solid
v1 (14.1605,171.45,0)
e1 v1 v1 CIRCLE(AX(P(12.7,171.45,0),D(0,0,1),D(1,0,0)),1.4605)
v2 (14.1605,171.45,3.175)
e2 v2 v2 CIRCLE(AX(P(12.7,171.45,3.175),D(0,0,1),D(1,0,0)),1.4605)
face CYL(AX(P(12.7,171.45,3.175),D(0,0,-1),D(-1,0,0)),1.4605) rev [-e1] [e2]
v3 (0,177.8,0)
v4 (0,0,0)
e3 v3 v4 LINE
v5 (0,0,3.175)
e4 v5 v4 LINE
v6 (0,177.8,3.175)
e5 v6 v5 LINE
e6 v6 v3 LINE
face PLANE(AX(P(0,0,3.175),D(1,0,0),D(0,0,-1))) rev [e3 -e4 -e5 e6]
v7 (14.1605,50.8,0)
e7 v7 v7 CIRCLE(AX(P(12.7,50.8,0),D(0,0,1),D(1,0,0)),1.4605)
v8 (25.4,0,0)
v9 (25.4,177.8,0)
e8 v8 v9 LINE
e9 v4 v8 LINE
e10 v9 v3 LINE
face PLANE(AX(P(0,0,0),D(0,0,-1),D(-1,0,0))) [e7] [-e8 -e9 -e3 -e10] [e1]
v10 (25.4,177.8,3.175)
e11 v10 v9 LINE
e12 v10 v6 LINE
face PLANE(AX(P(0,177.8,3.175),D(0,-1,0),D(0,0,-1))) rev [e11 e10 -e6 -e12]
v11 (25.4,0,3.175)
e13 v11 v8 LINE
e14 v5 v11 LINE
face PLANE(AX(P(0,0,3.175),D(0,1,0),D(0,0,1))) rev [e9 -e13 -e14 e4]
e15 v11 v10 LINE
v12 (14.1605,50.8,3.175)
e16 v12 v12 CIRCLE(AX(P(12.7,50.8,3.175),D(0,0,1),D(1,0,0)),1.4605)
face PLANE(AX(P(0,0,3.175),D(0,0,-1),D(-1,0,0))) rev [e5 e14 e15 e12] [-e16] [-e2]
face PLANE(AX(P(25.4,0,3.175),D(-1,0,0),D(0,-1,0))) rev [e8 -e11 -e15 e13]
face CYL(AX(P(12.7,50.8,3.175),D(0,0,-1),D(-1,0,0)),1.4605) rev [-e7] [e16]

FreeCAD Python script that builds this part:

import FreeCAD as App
import Part
import Sketcher
Q = App.Units.Quantity

doc = App.newDocument("Part")
body = doc.addObject("PartDesign::Body", "Body")

sketch1 = body.newObject("Sketcher::SketchObject", "Sketch")
sketch1.AttachmentSupport = (doc.getObject("XY_Plane"), [""])
sketch1.MapMode = "FlatFace"
sketch1.addGeometry(Part.LineSegment(App.Vector(0, 177.8, 0), App.Vector(0, 0, 0)), False)
sketch1.addGeometry(Part.LineSegment(App.Vector(0, 0, 0), App.Vector(25.4, 0, 0)), False)
sketch1.addGeometry(Part.LineSegment(App.Vector(25.4, 0, 0), App.Vector(25.4, 177.8, 0)), False)
sketch1.addGeometry(Part.LineSegment(App.Vector(25.4, 177.8, 0), App.Vector(0, 177.8, 0)), False)
sketch1.addGeometry(Part.Circle(App.Vector(12.7, 50.8, 0), App.Vector(0, 0, 1), 1.5), False)
sketch1.addGeometry(Part.Circle(App.Vector(12.7, 171.4, 0), App.Vector(0, 0, 1), 1.5), False)
sketch1.addConstraint(Sketcher.Constraint("Coincident", 0, 2, 1, 1))
sketch1.addConstraint(Sketcher.Constraint("Coincident", 1, 2, 2, 1))
sketch1.addConstraint(Sketcher.Constraint("Coincident", 2, 2, 3, 1))
sketch1.addConstraint(Sketcher.Constraint("Coincident", 3, 2, 0, 1))
sketch1.addConstraint(Sketcher.Constraint("Vertical", 0))
sketch1.addConstraint(Sketcher.Constraint("Horizontal", 1))
sketch1.addConstraint(Sketcher.Constraint("Vertical", 2))
sketch1.addConstraint(Sketcher.Constraint("Horizontal", 3))
sketch1.addConstraint(Sketcher.Constraint("Coincident", 0, 2, -1, 1))
sketch1.addConstraint(Sketcher.Constraint("Equal", 4, 5))
sketch1.addConstraint(Sketcher.Constraint("Vertical", 4, 3, 5, 3))
sketch1.addConstraint(Sketcher.Constraint("DistanceX", 1, 1, 1, 2, Q("1 in")))
sketch1.addConstraint(Sketcher.Constraint("DistanceY", 0, 2, 0, 1, Q("7 in")))
sketch1.addConstraint(Sketcher.Constraint("Diameter", 4, Q("0.115 in")))
sketch1.addConstraint(Sketcher.Constraint("DistanceY", -1, 1, 4, 3, Q("2 in")))
sketch1.addConstraint(Sketcher.Constraint("DistanceX", -1, 1, 4, 3, Q("0.5 in")))
sketch1.addConstraint(Sketcher.Constraint("DistanceY", -1, 1, 5, 3, Q("6.75 in")))
pad1 = body.newObject("PartDesign::Pad", "Pad")
pad1.Profile = sketch1
pad1.Length = Q("0.125 in")

doc.recompute()
